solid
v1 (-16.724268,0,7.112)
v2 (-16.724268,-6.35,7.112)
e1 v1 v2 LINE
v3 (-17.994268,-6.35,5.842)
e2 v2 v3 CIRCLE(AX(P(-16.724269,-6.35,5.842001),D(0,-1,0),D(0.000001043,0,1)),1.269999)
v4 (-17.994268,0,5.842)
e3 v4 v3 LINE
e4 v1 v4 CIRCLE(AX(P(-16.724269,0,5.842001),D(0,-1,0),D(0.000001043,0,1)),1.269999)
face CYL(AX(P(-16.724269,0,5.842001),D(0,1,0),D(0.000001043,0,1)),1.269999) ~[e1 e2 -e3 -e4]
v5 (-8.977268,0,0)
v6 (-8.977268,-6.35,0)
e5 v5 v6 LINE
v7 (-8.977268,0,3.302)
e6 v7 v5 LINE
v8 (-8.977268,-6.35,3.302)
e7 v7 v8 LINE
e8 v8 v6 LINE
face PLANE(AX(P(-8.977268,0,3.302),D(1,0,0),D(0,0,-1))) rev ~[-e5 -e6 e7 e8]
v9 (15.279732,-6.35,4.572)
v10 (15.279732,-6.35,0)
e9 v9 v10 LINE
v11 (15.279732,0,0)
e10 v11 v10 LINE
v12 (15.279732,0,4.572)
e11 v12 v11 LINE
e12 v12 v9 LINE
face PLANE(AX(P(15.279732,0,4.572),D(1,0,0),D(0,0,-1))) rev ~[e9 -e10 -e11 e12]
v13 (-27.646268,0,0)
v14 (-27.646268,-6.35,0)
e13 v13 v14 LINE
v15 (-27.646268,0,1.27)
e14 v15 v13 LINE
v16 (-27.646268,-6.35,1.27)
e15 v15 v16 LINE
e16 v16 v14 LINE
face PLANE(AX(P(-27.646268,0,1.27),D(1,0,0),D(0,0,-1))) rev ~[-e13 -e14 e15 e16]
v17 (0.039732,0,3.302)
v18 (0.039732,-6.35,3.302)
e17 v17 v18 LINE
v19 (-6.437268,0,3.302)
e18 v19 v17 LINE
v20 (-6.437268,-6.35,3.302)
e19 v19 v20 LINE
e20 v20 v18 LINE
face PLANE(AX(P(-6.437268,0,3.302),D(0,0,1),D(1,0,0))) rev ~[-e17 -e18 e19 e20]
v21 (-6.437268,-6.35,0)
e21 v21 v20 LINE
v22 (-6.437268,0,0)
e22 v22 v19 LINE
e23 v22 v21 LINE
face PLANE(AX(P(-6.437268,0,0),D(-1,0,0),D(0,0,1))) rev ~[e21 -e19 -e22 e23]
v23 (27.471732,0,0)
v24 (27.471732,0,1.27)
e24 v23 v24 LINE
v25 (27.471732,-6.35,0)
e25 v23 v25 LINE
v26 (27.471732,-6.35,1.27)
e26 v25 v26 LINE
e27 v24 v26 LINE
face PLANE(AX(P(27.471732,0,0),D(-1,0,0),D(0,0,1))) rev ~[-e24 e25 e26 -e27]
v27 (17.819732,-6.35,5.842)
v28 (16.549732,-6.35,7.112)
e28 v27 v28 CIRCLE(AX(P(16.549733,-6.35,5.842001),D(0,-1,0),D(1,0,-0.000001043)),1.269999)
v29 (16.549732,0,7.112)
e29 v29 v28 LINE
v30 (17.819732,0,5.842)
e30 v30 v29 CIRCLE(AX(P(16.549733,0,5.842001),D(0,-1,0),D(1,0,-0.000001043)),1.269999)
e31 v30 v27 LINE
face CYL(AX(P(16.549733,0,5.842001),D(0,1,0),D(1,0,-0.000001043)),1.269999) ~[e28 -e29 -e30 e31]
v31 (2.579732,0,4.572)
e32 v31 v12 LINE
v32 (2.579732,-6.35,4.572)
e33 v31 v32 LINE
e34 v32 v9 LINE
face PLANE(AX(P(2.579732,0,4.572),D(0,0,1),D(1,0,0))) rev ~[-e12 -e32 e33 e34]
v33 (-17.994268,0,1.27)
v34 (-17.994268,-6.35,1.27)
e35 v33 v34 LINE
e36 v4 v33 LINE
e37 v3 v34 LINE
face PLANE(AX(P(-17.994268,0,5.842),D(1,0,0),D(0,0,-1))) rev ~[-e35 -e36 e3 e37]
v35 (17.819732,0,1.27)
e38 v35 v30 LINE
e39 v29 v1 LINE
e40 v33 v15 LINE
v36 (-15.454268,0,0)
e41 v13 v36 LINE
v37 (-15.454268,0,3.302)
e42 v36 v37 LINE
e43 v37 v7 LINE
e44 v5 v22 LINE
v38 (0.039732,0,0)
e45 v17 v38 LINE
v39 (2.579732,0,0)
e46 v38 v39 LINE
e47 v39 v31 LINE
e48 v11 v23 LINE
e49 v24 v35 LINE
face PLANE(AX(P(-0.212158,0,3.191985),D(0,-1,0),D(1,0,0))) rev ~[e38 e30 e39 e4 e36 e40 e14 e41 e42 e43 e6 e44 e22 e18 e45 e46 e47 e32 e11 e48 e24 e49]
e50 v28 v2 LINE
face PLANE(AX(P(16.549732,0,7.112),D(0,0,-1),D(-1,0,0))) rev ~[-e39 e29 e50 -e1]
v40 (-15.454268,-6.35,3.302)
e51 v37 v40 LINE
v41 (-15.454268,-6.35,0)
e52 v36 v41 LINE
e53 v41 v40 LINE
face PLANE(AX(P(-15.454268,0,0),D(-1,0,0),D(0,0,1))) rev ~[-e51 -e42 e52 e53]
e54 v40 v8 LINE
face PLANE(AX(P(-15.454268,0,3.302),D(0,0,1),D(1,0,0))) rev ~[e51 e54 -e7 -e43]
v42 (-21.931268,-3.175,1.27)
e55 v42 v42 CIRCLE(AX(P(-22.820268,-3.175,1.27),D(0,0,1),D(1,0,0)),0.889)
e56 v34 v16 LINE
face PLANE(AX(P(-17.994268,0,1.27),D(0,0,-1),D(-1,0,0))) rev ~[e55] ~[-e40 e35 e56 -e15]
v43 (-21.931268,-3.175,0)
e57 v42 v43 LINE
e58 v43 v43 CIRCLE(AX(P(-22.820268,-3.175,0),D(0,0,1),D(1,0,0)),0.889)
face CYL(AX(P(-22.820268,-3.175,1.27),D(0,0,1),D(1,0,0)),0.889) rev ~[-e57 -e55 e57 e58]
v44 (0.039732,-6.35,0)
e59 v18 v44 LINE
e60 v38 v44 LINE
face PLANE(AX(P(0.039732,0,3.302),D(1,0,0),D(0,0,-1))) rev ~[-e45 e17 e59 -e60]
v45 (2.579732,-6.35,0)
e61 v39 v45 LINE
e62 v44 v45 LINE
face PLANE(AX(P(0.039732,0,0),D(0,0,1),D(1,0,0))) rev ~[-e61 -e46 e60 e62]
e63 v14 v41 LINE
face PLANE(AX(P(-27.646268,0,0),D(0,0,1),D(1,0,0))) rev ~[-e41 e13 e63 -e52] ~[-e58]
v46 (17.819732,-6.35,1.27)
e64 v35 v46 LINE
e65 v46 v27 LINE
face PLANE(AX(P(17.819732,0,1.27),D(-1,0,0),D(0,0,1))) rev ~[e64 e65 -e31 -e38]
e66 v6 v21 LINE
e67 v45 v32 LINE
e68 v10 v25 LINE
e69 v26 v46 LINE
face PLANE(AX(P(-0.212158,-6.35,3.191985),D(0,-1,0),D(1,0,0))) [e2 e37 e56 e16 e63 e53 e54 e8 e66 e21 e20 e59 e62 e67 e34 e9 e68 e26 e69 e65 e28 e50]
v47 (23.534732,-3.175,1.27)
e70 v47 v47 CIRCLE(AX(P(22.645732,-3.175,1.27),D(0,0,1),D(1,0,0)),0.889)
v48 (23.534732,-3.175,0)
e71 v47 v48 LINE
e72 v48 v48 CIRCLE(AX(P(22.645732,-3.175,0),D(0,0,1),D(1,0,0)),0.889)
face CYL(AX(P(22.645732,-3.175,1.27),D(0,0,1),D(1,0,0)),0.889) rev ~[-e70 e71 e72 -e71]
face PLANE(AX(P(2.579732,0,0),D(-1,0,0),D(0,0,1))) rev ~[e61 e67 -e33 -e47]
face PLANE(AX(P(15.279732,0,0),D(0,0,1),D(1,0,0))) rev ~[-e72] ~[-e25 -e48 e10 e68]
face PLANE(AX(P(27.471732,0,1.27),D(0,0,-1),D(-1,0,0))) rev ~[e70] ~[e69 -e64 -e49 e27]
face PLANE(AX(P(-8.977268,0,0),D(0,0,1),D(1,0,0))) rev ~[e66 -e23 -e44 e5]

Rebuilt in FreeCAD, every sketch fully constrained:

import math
import FreeCAD as App
import Part
import Sketcher
from FreeCAD import Vector
Q = App.Units.Quantity

doc = App.newDocument("Part")
body = doc.addObject("PartDesign::Body", "Body")

# Sketch on XZ plane
sketch1 = body.newObject("Sketcher::SketchObject", "Sketch")
sketch1.AttachmentSupport = (doc.getObject("XZ_Plane"), [""])
sketch1.MapMode = "FlatFace"
sketch1.addGeometry(Part.LineSegment(Vector(15.3, 4.6, 0), Vector(15.3, 0, 0)), False)
sketch1.addGeometry(Part.LineSegment(Vector(15.3, 0, 0), Vector(27.5, 0, 0)), False)
sketch1.addGeometry(Part.LineSegment(Vector(27.5, 0, 0), Vector(27.5, 1.3, 0)), False)
sketch1.addGeometry(Part.LineSegment(Vector(27.5, 1.3, 0), Vector(17.8, 1.3, 0)), False)
sketch1.addGeometry(Part.LineSegment(Vector(17.8, 1.3, 0), Vector(17.8, 5.8, 0)), False)
sketch1.addGeometry(Part.ArcOfCircle(Part.Circle(Vector(16.5, 5.8, 0), Vector(0, 0, 1), 1.3), math.radians(0), math.radians(90)), False)
sketch1.addGeometry(Part.LineSegment(Vector(16.5, 7.1, 0), Vector(-16.7, 7.1, 0)), False)
sketch1.addGeometry(Part.ArcOfCircle(Part.Circle(Vector(-16.7, 5.8, 0), Vector(0, 0, 1), 1.3), math.radians(90), math.radians(180)), False)
sketch1.addGeometry(Part.LineSegment(Vector(-18, 5.8, 0), Vector(-18, 1.3, 0)), False)
sketch1.addGeometry(Part.LineSegment(Vector(-18, 1.3, 0), Vector(-27.6, 1.3, 0)), False)
sketch1.addGeometry(Part.LineSegment(Vector(-27.6, 1.3, 0), Vector(-27.6, 0, 0)), False)
sketch1.addGeometry(Part.LineSegment(Vector(-27.6, 0, 0), Vector(-15.5, 0, 0)), False)
sketch1.addGeometry(Part.LineSegment(Vector(-15.5, 0, 0), Vector(-15.5, 3.3, 0)), False)
sketch1.addGeometry(Part.LineSegment(Vector(-15.5, 3.3, 0), Vector(-9, 3.3, 0)), False)
sketch1.addGeometry(Part.LineSegment(Vector(-9, 3.3, 0), Vector(-9, 0, 0)), False)
sketch1.addGeometry(Part.LineSegment(Vector(-9, 0, 0), Vector(-6.4, 0, 0)), False)
sketch1.addGeometry(Part.LineSegment(Vector(-6.4, 0, 0), Vector(-6.4, 3.3, 0)), False)
sketch1.addGeometry(Part.LineSegment(Vector(-6.4, 3.3, 0), Vector(0, 3.3, 0)), False)
sketch1.addGeometry(Part.LineSegment(Vector(0, 3.3, 0), Vector(0, 0, 0)), False)
sketch1.addGeometry(Part.LineSegment(Vector(0, 0, 0), Vector(2.6, 0, 0)), False)
sketch1.addGeometry(Part.LineSegment(Vector(2.6, 0, 0), Vector(2.6, 4.6, 0)), False)
sketch1.addGeometry(Part.LineSegment(Vector(2.6, 4.6, 0), Vector(15.3, 4.6, 0)), False)
sketch1.addConstraint(Sketcher.Constraint("Coincident", 0, 2, 1, 1))
sketch1.addConstraint(Sketcher.Constraint("Coincident", 1, 2, 2, 1))
sketch1.addConstraint(Sketcher.Constraint("Coincident", 2, 2, 3, 1))
sketch1.addConstraint(Sketcher.Constraint("Coincident", 3, 2, 4, 1))
sketch1.addConstraint(Sketcher.Constraint("Tangent", 4, 2, 5, 1))
sketch1.addConstraint(Sketcher.Constraint("Tangent", 5, 2, 6, 1))
sketch1.addConstraint(Sketcher.Constraint("Tangent", 6, 2, 7, 1))
sketch1.addConstraint(Sketcher.Constraint("Tangent", 7, 2, 8, 1))
sketch1.addConstraint(Sketcher.Constraint("Coincident", 8, 2, 9, 1))
sketch1.addConstraint(Sketcher.Constraint("Coincident", 9, 2, 10, 1))
sketch1.addConstraint(Sketcher.Constraint("Coincident", 10, 2, 11, 1))
sketch1.addConstraint(Sketcher.Constraint("Coincident", 11, 2, 12, 1))
sketch1.addConstraint(Sketcher.Constraint("Coincident", 12, 2, 13, 1))
sketch1.addConstraint(Sketcher.Constraint("Coincident", 13, 2, 14, 1))
sketch1.addConstraint(Sketcher.Constraint("Coincident", 14, 2, 15, 1))
sketch1.addConstraint(Sketcher.Constraint("Coincident", 15, 2, 16, 1))
sketch1.addConstraint(Sketcher.Constraint("Coincident", 16, 2, 17, 1))
sketch1.addConstraint(Sketcher.Constraint("Coincident", 17, 2, 18, 1))
sketch1.addConstraint(Sketcher.Constraint("Coincident", 18, 2, 19, 1))
sketch1.addConstraint(Sketcher.Constraint("Coincident", 19, 2, 20, 1))
sketch1.addConstraint(Sketcher.Constraint("Coincident", 20, 2, 21, 1))
sketch1.addConstraint(Sketcher.Constraint("Coincident", 21, 2, 0, 1))
sketch1.addConstraint(Sketcher.Constraint("Vertical", 0))
sketch1.addConstraint(Sketcher.Constraint("Horizontal", 1))
sketch1.addConstraint(Sketcher.Constraint("Vertical", 2))
sketch1.addConstraint(Sketcher.Constraint("Horizontal", 3))
sketch1.addConstraint(Sketcher.Constraint("Vertical", 4))
sketch1.addConstraint(Sketcher.Constraint("Horizontal", 6))
sketch1.addConstraint(Sketcher.Constraint("Vertical", 8))
sketch1.addConstraint(Sketcher.Constraint("Horizontal", 9))
sketch1.addConstraint(Sketcher.Constraint("Vertical", 10))
sketch1.addConstraint(Sketcher.Constraint("Horizontal", 11))
sketch1.addConstraint(Sketcher.Constraint("Vertical", 12))
sketch1.addConstraint(Sketcher.Constraint("Horizontal", 13))
sketch1.addConstraint(Sketcher.Constraint("Vertical", 14))
sketch1.addConstraint(Sketcher.Constraint("Horizontal", 15))
sketch1.addConstraint(Sketcher.Constraint("Vertical", 16))
sketch1.addConstraint(Sketcher.Constraint("Horizontal", 17))
sketch1.addConstraint(Sketcher.Constraint("Vertical", 18))
sketch1.addConstraint(Sketcher.Constraint("Horizontal", 19))
sketch1.addConstraint(Sketcher.Constraint("Vertical", 20))
sketch1.addConstraint(Sketcher.Constraint("Horizontal", 21))
sketch1.addConstraint(Sketcher.Constraint("Equal", 5, 7))
sketch1.addConstraint(Sketcher.Constraint("PointOnObject", 0, 2, -1))
sketch1.addConstraint(Sketcher.Constraint("PointOnObject", 10, 2, -1))
sketch1.addConstraint(Sketcher.Constraint("PointOnObject", 14, 2, -1))
sketch1.addConstraint(Sketcher.Constraint("PointOnObject", 18, 2, -1))
sketch1.addConstraint(Sketcher.Constraint("Horizontal", 3, 2, 8, 2))
sketch1.addConstraint(Sketcher.Constraint("Horizontal", 13, 2, 16, 2))
sketch1.addConstraint(Sketcher.Constraint("Equal", 3, 9))
sketch1.addConstraint(Sketcher.Constraint("Equal", 1, 11))
sketch1.addConstraint(Sketcher.Constraint("Equal", 13, 17))
sketch1.addConstraint(Sketcher.Constraint("Equal", 15, 19))
sketch1.addConstraint(Sketcher.Constraint("Equal", 0, 4))
sketch1.addConstraint(Sketcher.Constraint("Radius", 5, Q("0.0499999 in")))
sketch1.addConstraint(Sketcher.Constraint("DistanceX", 15, 1, 15, 2, Q("0.1 in")))
sketch1.addConstraint(Sketcher.Constraint("DistanceX", 21, 1, 21, 2, Q("0.5 in")))
sketch1.addConstraint(Sketcher.Constraint("DistanceX", 1, 1, 1, 2, Q("0.48 in")))
sketch1.addConstraint(Sketcher.Constraint("DistanceX", 3, 2, 3, 1, Q("0.38 in")))
sketch1.addConstraint(Sketcher.Constraint("DistanceX", 6, 2, 6, 1, Q("1.31 in")))
sketch1.addConstraint(Sketcher.Constraint("DistanceY", 0, 2, 0, 1, Q("0.18 in")))
sketch1.addConstraint(Sketcher.Constraint("DistanceY", 2, 1, 2, 2, Q("0.05 in")))
sketch1.addConstraint(Sketcher.Constraint("DistanceY", 12, 1, 12, 2, Q("0.13 in")))
sketch1.addConstraint(Sketcher.Constraint("DistanceX", 7, 3, -1, 1, 16.724269))
pad1 = body.newObject("PartDesign::Pad", "Pad")
pad1.Profile = sketch1
pad1.Length = Q("0.25 in")

# Sketch on XY plane
sketch2 = body.newObject("Sketcher::SketchObject", "Sketch001")
sketch2.AttachmentSupport = (doc.getObject("XY_Plane"), [""])
sketch2.MapMode = "FlatFace"
sketch2.AttachmentOffset = App.Placement(Vector(0, 0, 0.05 * 25.4), App.Rotation())
sketch2.addGeometry(Part.Circle(Vector(-22.8, -3.2, 0), Vector(0, 0, 1), 0.9), False)
sketch2.addGeometry(Part.Circle(Vector(22.6, -3.2, 0), Vector(0, 0, 1), 0.9), False)
sketch2.addConstraint(Sketcher.Constraint("Equal", 0, 1))
sketch2.addConstraint(Sketcher.Constraint("Horizontal", 0, 3, 1, 3))
sketch2.addConstraint(Sketcher.Constraint("Diameter", 0, Q("0.07 in")))
sketch2.addConstraint(Sketcher.Constraint("DistanceX", 0, 3, 1, 3, Q("1.79 in")))
sketch2.addConstraint(Sketcher.Constraint("DistanceY", 0, 3, -1, 1, Q("0.125 in")))
sketch2.addConstraint(Sketcher.Constraint("DistanceX", -1, 1, 1, 3, 22.645732))
pocket1 = body.newObject("PartDesign::Pocket", "Pocket")
pocket1.Profile = sketch2
pocket1.Type = "ThroughAll"

doc.recompute()
